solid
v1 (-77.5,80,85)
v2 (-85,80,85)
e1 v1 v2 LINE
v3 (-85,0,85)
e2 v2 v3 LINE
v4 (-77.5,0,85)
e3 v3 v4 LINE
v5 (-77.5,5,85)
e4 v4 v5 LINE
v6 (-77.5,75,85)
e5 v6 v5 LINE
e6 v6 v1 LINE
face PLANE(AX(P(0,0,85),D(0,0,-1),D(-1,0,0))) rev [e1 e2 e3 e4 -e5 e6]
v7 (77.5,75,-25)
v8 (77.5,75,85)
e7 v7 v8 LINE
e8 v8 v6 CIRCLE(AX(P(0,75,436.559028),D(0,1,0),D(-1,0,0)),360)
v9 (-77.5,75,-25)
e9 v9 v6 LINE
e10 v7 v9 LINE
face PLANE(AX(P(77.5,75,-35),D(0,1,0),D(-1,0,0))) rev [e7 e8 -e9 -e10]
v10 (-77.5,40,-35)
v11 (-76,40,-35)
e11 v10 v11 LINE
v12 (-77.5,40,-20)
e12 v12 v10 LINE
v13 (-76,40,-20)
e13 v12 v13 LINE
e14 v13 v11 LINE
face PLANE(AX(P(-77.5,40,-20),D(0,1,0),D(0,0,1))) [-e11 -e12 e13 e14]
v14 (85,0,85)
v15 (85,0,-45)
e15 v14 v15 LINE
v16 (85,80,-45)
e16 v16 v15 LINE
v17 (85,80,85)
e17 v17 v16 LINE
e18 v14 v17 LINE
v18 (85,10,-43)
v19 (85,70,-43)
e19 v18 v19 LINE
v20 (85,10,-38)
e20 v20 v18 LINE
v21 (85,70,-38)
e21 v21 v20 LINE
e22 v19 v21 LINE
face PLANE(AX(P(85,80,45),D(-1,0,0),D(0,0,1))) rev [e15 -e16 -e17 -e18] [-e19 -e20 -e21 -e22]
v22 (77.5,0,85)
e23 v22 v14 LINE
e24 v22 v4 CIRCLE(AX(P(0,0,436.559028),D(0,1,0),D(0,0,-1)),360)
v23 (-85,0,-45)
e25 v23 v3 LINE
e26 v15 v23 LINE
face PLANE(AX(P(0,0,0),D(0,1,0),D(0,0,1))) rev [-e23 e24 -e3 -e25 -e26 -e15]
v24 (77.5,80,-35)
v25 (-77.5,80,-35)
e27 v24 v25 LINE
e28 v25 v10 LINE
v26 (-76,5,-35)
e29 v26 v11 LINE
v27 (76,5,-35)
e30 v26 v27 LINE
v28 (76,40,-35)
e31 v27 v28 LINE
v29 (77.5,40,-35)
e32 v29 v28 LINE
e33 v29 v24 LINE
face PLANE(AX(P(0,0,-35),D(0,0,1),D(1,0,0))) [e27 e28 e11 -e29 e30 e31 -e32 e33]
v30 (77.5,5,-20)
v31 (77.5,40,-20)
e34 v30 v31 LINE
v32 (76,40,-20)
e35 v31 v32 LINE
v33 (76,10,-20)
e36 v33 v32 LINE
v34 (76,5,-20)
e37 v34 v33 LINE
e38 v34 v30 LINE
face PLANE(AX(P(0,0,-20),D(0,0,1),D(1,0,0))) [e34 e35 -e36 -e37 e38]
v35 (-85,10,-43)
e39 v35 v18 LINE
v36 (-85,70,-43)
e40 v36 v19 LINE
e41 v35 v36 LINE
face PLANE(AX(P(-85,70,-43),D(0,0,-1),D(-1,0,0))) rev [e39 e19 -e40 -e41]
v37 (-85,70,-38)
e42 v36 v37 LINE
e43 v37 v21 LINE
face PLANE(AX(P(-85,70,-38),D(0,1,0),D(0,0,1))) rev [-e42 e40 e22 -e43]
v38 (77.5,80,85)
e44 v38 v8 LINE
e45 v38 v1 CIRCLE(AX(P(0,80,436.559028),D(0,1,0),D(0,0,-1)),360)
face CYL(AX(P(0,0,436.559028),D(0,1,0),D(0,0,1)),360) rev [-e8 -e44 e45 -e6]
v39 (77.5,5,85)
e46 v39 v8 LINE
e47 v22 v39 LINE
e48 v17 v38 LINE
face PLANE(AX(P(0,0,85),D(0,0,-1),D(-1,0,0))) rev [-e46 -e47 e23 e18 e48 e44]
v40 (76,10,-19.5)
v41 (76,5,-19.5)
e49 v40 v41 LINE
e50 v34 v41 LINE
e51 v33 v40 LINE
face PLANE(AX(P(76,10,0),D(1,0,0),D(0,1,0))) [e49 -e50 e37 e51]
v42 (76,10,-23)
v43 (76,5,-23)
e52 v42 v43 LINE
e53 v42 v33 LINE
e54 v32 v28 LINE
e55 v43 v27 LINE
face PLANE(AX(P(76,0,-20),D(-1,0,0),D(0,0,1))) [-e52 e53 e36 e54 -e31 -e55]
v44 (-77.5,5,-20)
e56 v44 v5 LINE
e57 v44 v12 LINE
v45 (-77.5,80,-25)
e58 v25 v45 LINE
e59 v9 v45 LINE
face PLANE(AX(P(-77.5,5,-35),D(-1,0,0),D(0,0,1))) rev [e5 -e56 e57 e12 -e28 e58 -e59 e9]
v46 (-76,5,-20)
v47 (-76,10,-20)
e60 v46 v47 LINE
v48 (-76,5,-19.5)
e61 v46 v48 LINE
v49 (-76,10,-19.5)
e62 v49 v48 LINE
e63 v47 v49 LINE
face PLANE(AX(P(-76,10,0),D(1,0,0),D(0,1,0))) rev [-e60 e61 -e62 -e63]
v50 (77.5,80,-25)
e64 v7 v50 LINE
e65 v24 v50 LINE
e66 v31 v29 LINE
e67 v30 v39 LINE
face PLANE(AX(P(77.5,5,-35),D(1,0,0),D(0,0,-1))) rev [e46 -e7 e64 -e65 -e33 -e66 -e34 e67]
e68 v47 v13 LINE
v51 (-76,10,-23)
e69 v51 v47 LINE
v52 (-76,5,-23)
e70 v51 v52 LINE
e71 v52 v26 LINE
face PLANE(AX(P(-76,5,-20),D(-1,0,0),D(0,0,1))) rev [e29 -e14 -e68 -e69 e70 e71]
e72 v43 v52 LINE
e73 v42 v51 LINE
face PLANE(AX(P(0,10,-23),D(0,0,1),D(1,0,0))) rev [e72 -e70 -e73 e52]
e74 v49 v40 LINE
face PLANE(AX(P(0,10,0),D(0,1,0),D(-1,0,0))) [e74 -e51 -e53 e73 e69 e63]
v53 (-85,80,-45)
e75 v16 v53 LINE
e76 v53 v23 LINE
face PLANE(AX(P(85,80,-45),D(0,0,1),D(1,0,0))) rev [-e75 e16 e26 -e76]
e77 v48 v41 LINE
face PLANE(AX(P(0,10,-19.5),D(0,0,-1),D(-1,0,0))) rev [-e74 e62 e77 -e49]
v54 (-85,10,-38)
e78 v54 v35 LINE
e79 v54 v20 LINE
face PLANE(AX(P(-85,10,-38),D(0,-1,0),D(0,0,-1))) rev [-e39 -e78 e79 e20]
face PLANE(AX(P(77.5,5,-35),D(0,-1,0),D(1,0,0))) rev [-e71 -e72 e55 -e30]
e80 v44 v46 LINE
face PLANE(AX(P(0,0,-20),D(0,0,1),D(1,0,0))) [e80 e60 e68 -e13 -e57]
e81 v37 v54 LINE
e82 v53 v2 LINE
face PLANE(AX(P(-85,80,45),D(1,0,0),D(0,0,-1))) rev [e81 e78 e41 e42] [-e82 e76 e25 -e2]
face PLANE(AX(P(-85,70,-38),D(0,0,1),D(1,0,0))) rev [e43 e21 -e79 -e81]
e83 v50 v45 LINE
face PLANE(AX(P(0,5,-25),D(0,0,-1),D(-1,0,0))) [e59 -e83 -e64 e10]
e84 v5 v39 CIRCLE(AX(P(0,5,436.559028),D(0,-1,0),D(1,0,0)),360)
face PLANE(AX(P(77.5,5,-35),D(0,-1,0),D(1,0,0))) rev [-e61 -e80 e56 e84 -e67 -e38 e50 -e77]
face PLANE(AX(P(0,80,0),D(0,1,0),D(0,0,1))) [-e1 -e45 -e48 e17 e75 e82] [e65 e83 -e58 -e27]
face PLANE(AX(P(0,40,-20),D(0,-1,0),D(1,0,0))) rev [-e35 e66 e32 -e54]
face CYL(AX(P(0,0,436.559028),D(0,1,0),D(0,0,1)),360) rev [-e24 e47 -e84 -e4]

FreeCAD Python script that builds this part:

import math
import FreeCAD as App
import Part
import Sketcher
Q = App.Units.Quantity

doc = App.newDocument("Part")
body = doc.addObject("PartDesign::Body", "Body")

sketch1 = body.newObject("Sketcher::SketchObject", "Sketch")
sketch1.AttachmentSupport = (doc.getObject("XZ_Plane"), [""])
sketch1.MapMode = "FlatFace"
sketch1.addGeometry(Part.LineSegment(App.Vector(-85, -45, 0), App.Vector(-85, 45, 0)), False)
sketch1.addGeometry(Part.LineSegment(App.Vector(-85, 45, 0), App.Vector(85, 45, 0)), False)
sketch1.addGeometry(Part.LineSegment(App.Vector(85, 45, 0), App.Vector(85, -45, 0)), False)
sketch1.addGeometry(Part.LineSegment(App.Vector(85, -45, 0), App.Vector(-85, -45, 0)), False)
sketch1.addConstraint(Sketcher.Constraint("Coincident", 0, 2, 1, 1))
sketch1.addConstraint(Sketcher.Constraint("Coincident", 1, 2, 2, 1))
sketch1.addConstraint(Sketcher.Constraint("Coincident", 2, 2, 3, 1))
sketch1.addConstraint(Sketcher.Constraint("Coincident", 3, 2, 0, 1))
sketch1.addConstraint(Sketcher.Constraint("Vertical", 0))
sketch1.addConstraint(Sketcher.Constraint("Horizontal", 1))
sketch1.addConstraint(Sketcher.Constraint("Vertical", 2))
sketch1.addConstraint(Sketcher.Constraint("Horizontal", 3))
sketch1.addConstraint(Sketcher.Constraint("Symmetric", 0, 2, 2, 2, -1, 1))
sketch1.addConstraint(Sketcher.Constraint("DistanceX", 1, 1, 1, 2, Q("170 mm")))
sketch1.addConstraint(Sketcher.Constraint("DistanceY", 0, 1, 0, 2, Q("90 mm")))
pad1 = body.newObject("PartDesign::Pad", "Pad")
pad1.Profile = sketch1
pad1.Length = 80
pad1.Reversed = True

sketch2 = body.newObject("Sketcher::SketchObject", "Sketch001")
sketch2.AttachmentSupport = (doc.getObject("XY_Plane"), [""])
sketch2.MapMode = "FlatFace"
sketch2.AttachmentOffset = App.Placement(App.Vector(0, 0, 45), App.Rotation())
sketch2.addGeometry(Part.LineSegment(App.Vector(-85, 80, 0), App.Vector(-85, 0, 0)), False)
sketch2.addGeometry(Part.LineSegment(App.Vector(-85, 0, 0), App.Vector(85, 0, 0)), False)
sketch2.addGeometry(Part.LineSegment(App.Vector(85, 0, 0), App.Vector(85, 80, 0)), False)
sketch2.addGeometry(Part.LineSegment(App.Vector(85, 80, 0), App.Vector(-85, 80, 0)), False)
sketch2.addConstraint(Sketcher.Constraint("Coincident", 0, 2, 1, 1))
sketch2.addConstraint(Sketcher.Constraint("Coincident", 1, 2, 2, 1))
sketch2.addConstraint(Sketcher.Constraint("Coincident", 2, 2, 3, 1))
sketch2.addConstraint(Sketcher.Constraint("Coincident", 3, 2, 0, 1))
sketch2.addConstraint(Sketcher.Constraint("Vertical", 0))
sketch2.addConstraint(Sketcher.Constraint("Horizontal", 1))
sketch2.addConstraint(Sketcher.Constraint("Vertical", 2))
sketch2.addConstraint(Sketcher.Constraint("Horizontal", 3))
sketch2.addConstraint(Sketcher.Constraint("Symmetric", 0, 2, 1, 2, -1, 1))
sketch2.addConstraint(Sketcher.Constraint("DistanceX", 1, 1, 1, 2, Q("170 mm")))
sketch2.addConstraint(Sketcher.Constraint("DistanceY", 0, 2, 0, 1, Q("80 mm")))
pad2 = body.newObject("PartDesign::Pad", "Pad001")
pad2.Profile = sketch2
pad2.Length = 30

sketch3 = body.newObject("Sketcher::SketchObject", "Sketch002")
sketch3.AttachmentSupport = (doc.getObject("XY_Plane"), [""])
sketch3.MapMode = "FlatFace"
sketch3.AttachmentOffset = App.Placement(App.Vector(0, 0, 75), App.Rotation())
sketch3.addGeometry(Part.LineSegment(App.Vector(-78, 75, 0), App.Vector(-78, 5, 0)), False)
sketch3.addGeometry(Part.LineSegment(App.Vector(-78, 5, 0), App.Vector(78, 5, 0)), False)
sketch3.addGeometry(Part.LineSegment(App.Vector(78, 5, 0), App.Vector(78, 75, 0)), False)
sketch3.addGeometry(Part.LineSegment(App.Vector(78, 75, 0), App.Vector(-78, 75, 0)), False)
sketch3.addConstraint(Sketcher.Constraint("Coincident", 0, 2, 1, 1))
sketch3.addConstraint(Sketcher.Constraint("Coincident", 1, 2, 2, 1))
sketch3.addConstraint(Sketcher.Constraint("Coincident", 2, 2, 3, 1))
sketch3.addConstraint(Sketcher.Constraint("Coincident", 3, 2, 0, 1))
sketch3.addConstraint(Sketcher.Constraint("Vertical", 0))
sketch3.addConstraint(Sketcher.Constraint("Horizontal", 1))
sketch3.addConstraint(Sketcher.Constraint("Vertical", 2))
sketch3.addConstraint(Sketcher.Constraint("Horizontal", 3))
sketch3.addConstraint(Sketcher.Constraint("DistanceX", 1, 1, 1, 2, Q("155 mm")))
sketch3.addConstraint(Sketcher.Constraint("DistanceY", 0, 2, 0, 1, Q("70 mm")))
sketch3.addConstraint(Sketcher.Constraint("DistanceY", -1, 1, 0, 2, Q("5 mm")))
sketch3.addConstraint(Sketcher.Constraint("DistanceX", 0, 2, -1, 1, Q("77.5 mm")))
pocket1 = body.newObject("PartDesign::Pocket", "Pocket")
pocket1.Profile = sketch3
pocket1.Length = 110

sketch4 = body.newObject("Sketcher::SketchObject", "Sketch003")
sketch4.AttachmentSupport = (doc.getObject("XZ_Plane"), [""])
sketch4.MapMode = "FlatFace"
sketch4.AttachmentOffset = App.Placement(App.Vector(0, 0, -80), App.Rotation())
sketch4.addGeometry(Part.LineSegment(App.Vector(-78, -35, 0), App.Vector(-78, -25, 0)), False)
sketch4.addGeometry(Part.LineSegment(App.Vector(-78, -25, 0), App.Vector(78, -25, 0)), False)
sketch4.addGeometry(Part.LineSegment(App.Vector(78, -25, 0), App.Vector(78, -35, 0)), False)
sketch4.addGeometry(Part.LineSegment(App.Vector(78, -35, 0), App.Vector(-78, -35, 0)), False)
sketch4.addConstraint(Sketcher.Constraint("Coincident", 0, 2, 1, 1))
sketch4.addConstraint(Sketcher.Constraint("Coincident", 1, 2, 2, 1))
sketch4.addConstraint(Sketcher.Constraint("Coincident", 2, 2, 3, 1))
sketch4.addConstraint(Sketcher.Constraint("Coincident", 3, 2, 0, 1))
sketch4.addConstraint(Sketcher.Constraint("Vertical", 0))
sketch4.addConstraint(Sketcher.Constraint("Horizontal", 1))
sketch4.addConstraint(Sketcher.Constraint("Vertical", 2))
sketch4.addConstraint(Sketcher.Constraint("Horizontal", 3))
sketch4.addConstraint(Sketcher.Constraint("DistanceX", 1, 1, 1, 2, Q("155 mm")))
sketch4.addConstraint(Sketcher.Constraint("DistanceY", 0, 1, 0, 2, Q("10 mm")))
sketch4.addConstraint(Sketcher.Constraint("DistanceY", 0, 2, -1, 1, Q("25 mm")))
sketch4.addConstraint(Sketcher.Constraint("DistanceX", 0, 2, -1, 1, Q("77.5 mm")))
pocket2 = body.newObject("PartDesign::Pocket", "Pocket001")
pocket2.Profile = sketch4
pocket2.Length = 75
pocket2.Reversed = True

sketch5 = body.newObject("Sketcher::SketchObject", "Sketch004")
sketch5.AttachmentSupport = (doc.getObject("XY_Plane"), [""])
sketch5.MapMode = "FlatFace"
sketch5.AttachmentOffset = App.Placement(App.Vector(0, 0, -35), App.Rotation())
sketch5.addGeometry(Part.LineSegment(App.Vector(76, 40, 0), App.Vector(76, 5, 0)), False)
sketch5.addGeometry(Part.LineSegment(App.Vector(76, 5, 0), App.Vector(77.5, 5, 0)), False)
sketch5.addGeometry(Part.LineSegment(App.Vector(77.5, 5, 0), App.Vector(77.5, 40, 0)), False)
sketch5.addGeometry(Part.LineSegment(App.Vector(77.5, 40, 0), App.Vector(76, 40, 0)), False)
sketch5.addGeometry(Part.LineSegment(App.Vector(-77.5, 40, 0), App.Vector(-77.5, 5, 0)), False)
sketch5.addGeometry(Part.LineSegment(App.Vector(-77.5, 5, 0), App.Vector(-76, 5, 0)), False)
sketch5.addGeometry(Part.LineSegment(App.Vector(-76, 5, 0), App.Vector(-76, 40, 0)), False)
sketch5.addGeometry(Part.LineSegment(App.Vector(-76, 40, 0), App.Vector(-77.5, 40, 0)), False)
sketch5.addConstraint(Sketcher.Constraint("Coincident", 0, 2, 1, 1))
sketch5.addConstraint(Sketcher.Constraint("Coincident", 1, 2, 2, 1))
sketch5.addConstraint(Sketcher.Constraint("Coincident", 2, 2, 3, 1))
sketch5.addConstraint(Sketcher.Constraint("Coincident", 3, 2, 0, 1))
sketch5.addConstraint(Sketcher.Constraint("Coincident", 4, 2, 5, 1))
sketch5.addConstraint(Sketcher.Constraint("Coincident", 5, 2, 6, 1))
sketch5.addConstraint(Sketcher.Constraint("Coincident", 6, 2, 7, 1))
sketch5.addConstraint(Sketcher.Constraint("Coincident", 7, 2, 4, 1))
sketch5.addConstraint(Sketcher.Constraint("Vertical", 0))
sketch5.addConstraint(Sketcher.Constraint("Horizontal", 1))
sketch5.addConstraint(Sketcher.Constraint("Vertical", 2))
sketch5.addConstraint(Sketcher.Constraint("Horizontal", 3))
sketch5.addConstraint(Sketcher.Constraint("Vertical", 4))
sketch5.addConstraint(Sketcher.Constraint("Horizontal", 5))
sketch5.addConstraint(Sketcher.Constraint("Vertical", 6))
sketch5.addConstraint(Sketcher.Constraint("Horizontal", 7))
sketch5.addConstraint(Sketcher.Constraint("Symmetric", 1, 2, 4, 2, -2))
sketch5.addConstraint(Sketcher.Constraint("Symmetric", 3, 2, 6, 2, -2))
sketch5.addConstraint(Sketcher.Constraint("DistanceY", 0, 2, 0, 1, Q("35 mm")))
sketch5.addConstraint(Sketcher.Constraint("DistanceX", 1, 1, 1, 2, Q("1.5 mm")))
sketch5.addConstraint(Sketcher.Constraint("DistanceX", -1, 1, 0, 2, Q("76 mm")))
sketch5.addConstraint(Sketcher.Constraint("DistanceY", -1, 1, 0, 2, Q("5 mm")))
pad3 = body.newObject("PartDesign::Pad", "Pad002")
pad3.Profile = sketch5
pad3.Length = 15

sketch6 = body.newObject("Sketcher::SketchObject", "Sketch005")
sketch6.AttachmentSupport = (doc.getObject("XZ_Plane"), [""])
sketch6.MapMode = "FlatFace"
sketch6.AttachmentOffset = App.Placement(App.Vector(0, 0, -5), App.Rotation())
sketch6.addGeometry(Part.LineSegment(App.Vector(-76, -23, 0), App.Vector(-76, -19.5, 0)), False)
sketch6.addGeometry(Part.LineSegment(App.Vector(-76, -19.5, 0), App.Vector(76, -19.5, 0)), False)
sketch6.addGeometry(Part.LineSegment(App.Vector(76, -19.5, 0), App.Vector(76, -23, 0)), False)
sketch6.addGeometry(Part.LineSegment(App.Vector(76, -23, 0), App.Vector(-76, -23, 0)), False)
sketch6.addConstraint(Sketcher.Constraint("Coincident", 0, 2, 1, 1))
sketch6.addConstraint(Sketcher.Constraint("Coincident", 1, 2, 2, 1))
sketch6.addConstraint(Sketcher.Constraint("Coincident", 2, 2, 3, 1))
sketch6.addConstraint(Sketcher.Constraint("Coincident", 3, 2, 0, 1))
sketch6.addConstraint(Sketcher.Constraint("Vertical", 0))
sketch6.addConstraint(Sketcher.Constraint("Horizontal", 1))
sketch6.addConstraint(Sketcher.Constraint("Vertical", 2))
sketch6.addConstraint(Sketcher.Constraint("Horizontal", 3))
sketch6.addConstraint(Sketcher.Constraint("DistanceX", 1, 1, 1, 2, Q("152 mm")))
sketch6.addConstraint(Sketcher.Constraint("DistanceY", 0, 1, 0, 2, Q("3.5 mm")))
sketch6.addConstraint(Sketcher.Constraint("DistanceX", 0, 2, -1, 1, Q("76 mm")))
sketch6.addConstraint(Sketcher.Constraint("DistanceY", 2, 2, -1, 1, Q("23 mm")))
pad4 = body.newObject("PartDesign::Pad", "Pad003")
pad4.Profile = sketch6
pad4.Length = 5
pad4.Reversed = True

sketch7 = body.newObject("Sketcher::SketchObject", "Sketch006")
sketch7.AttachmentSupport = (doc.getObject("XY_Plane"), [""])
sketch7.MapMode = "FlatFace"
sketch7.AttachmentOffset = App.Placement(App.Vector(0, 0, 75), App.Rotation())
sketch7.addGeometry(Part.LineSegment(App.Vector(-85, 80, 0), App.Vector(-85, 0, 0)), False)
sketch7.addGeometry(Part.LineSegment(App.Vector(-85, 0, 0), App.Vector(85, 0, 0)), False)
sketch7.addGeometry(Part.LineSegment(App.Vector(85, 0, 0), App.Vector(85, 80, 0)), False)
sketch7.addGeometry(Part.LineSegment(App.Vector(85, 80, 0), App.Vector(-85, 80, 0)), False)
sketch7.addGeometry(Part.LineSegment(App.Vector(78, 5, 0), App.Vector(-78, 5, 0)), False)
sketch7.addGeometry(Part.LineSegment(App.Vector(-78, 5, 0), App.Vector(-78, 75, 0)), False)
sketch7.addGeometry(Part.LineSegment(App.Vector(-78, 75, 0), App.Vector(78, 75, 0)), False)
sketch7.addGeometry(Part.LineSegment(App.Vector(78, 75, 0), App.Vector(78, 5, 0)), False)
sketch7.addConstraint(Sketcher.Constraint("Coincident", 0, 2, 1, 1))
sketch7.addConstraint(Sketcher.Constraint("Coincident", 1, 2, 2, 1))
sketch7.addConstraint(Sketcher.Constraint("Coincident", 2, 2, 3, 1))
sketch7.addConstraint(Sketcher.Constraint("Coincident", 3, 2, 0, 1))
sketch7.addConstraint(Sketcher.Constraint("Coincident", 4, 2, 5, 1))
sketch7.addConstraint(Sketcher.Constraint("Coincident", 5, 2, 6, 1))
sketch7.addConstraint(Sketcher.Constraint("Coincident", 6, 2, 7, 1))
sketch7.addConstraint(Sketcher.Constraint("Coincident", 7, 2, 4, 1))
sketch7.addConstraint(Sketcher.Constraint("Vertical", 0))
sketch7.addConstraint(Sketcher.Constraint("Horizontal", 1))
sketch7.addConstraint(Sketcher.Constraint("Vertical", 2))
sketch7.addConstraint(Sketcher.Constraint("Horizontal", 3))
sketch7.addConstraint(Sketcher.Constraint("Horizontal", 4))
sketch7.addConstraint(Sketcher.Constraint("Vertical", 5))
sketch7.addConstraint(Sketcher.Constraint("Horizontal", 6))
sketch7.addConstraint(Sketcher.Constraint("Vertical", 7))
sketch7.addConstraint(Sketcher.Constraint("Symmetric", 0, 2, 1, 2, -1, 1))
sketch7.addConstraint(Sketcher.Constraint("DistanceX", 1, 1, 1, 2, Q("170 mm")))
sketch7.addConstraint(Sketcher.Constraint("DistanceX", 4, 2, 4, 1, Q("155 mm")))
sketch7.addConstraint(Sketcher.Constraint("DistanceY", 0, 2, 0, 1, Q("80 mm")))
sketch7.addConstraint(Sketcher.Constraint("DistanceY", 5, 1, 5, 2, Q("70 mm")))
sketch7.addConstraint(Sketcher.Constraint("DistanceY", -1, 1, 4, 2, Q("5 mm")))
sketch7.addConstraint(Sketcher.Constraint("DistanceX", 4, 2, -1, 1, Q("77.5 mm")))
pad5 = body.newObject("PartDesign::Pad", "Pad004")
pad5.Profile = sketch7
pad5.Length = 10

sketch8 = body.newObject("Sketcher::SketchObject", "Sketch007")
sketch8.AttachmentSupport = (doc.getObject("XZ_Plane"), [""])
sketch8.MapMode = "FlatFace"
sketch8.AttachmentOffset = App.Placement(App.Vector(0, 0, -80), App.Rotation())
sketch8.addGeometry(Part.LineSegment(App.Vector(-78, 85, 0), App.Vector(78, 85, 0)), False)
sketch8.addGeometry(Part.ArcOfCircle(Part.Circle(App.Vector(0, 437, 0), App.Vector(0, 0, 1), 360), math.radians(-102), math.radians(-78)), False)
sketch8.addConstraint(Sketcher.Constraint("Coincident", 0, 1, 1, 1))
sketch8.addConstraint(Sketcher.Constraint("Coincident", 1, 2, 0, 2))
sketch8.addConstraint(Sketcher.Constraint("Horizontal", 0))
sketch8.addConstraint(Sketcher.Constraint("PointOnObject", 1, 3, -2))
sketch8.addConstraint(Sketcher.Constraint("Radius", 1, Q("360 mm")))
sketch8.addConstraint(Sketcher.Constraint("DistanceX", 0, 1, 0, 2, Q("155 mm")))
sketch8.addConstraint(Sketcher.Constraint("DistanceY", -1, 1, 0, 1, Q("85 mm")))
pocket3 = body.newObject("PartDesign::Pocket", "Pocket002")
pocket3.Profile = sketch8
pocket3.Type = "ThroughAll"
pocket3.Reversed = True

sketch9 = body.newObject("Sketcher::SketchObject", "Sketch008")
sketch9.AttachmentSupport = (doc.getObject("YZ_Plane"), [""])
sketch9.MapMode = "FlatFace"
sketch9.AttachmentOffset = App.Placement(App.Vector(0, 0, 85), App.Rotation())
sketch9.addGeometry(Part.LineSegment(App.Vector(70, -38, 0), App.Vector(10, -38, 0)), False)
sketch9.addGeometry(Part.LineSegment(App.Vector(10, -38, 0), App.Vector(10, -43, 0)), False)
sketch9.addGeometry(Part.LineSegment(App.Vector(10, -43, 0), App.Vector(70, -43, 0)), False)
sketch9.addGeometry(Part.LineSegment(App.Vector(70, -43, 0), App.Vector(70, -38, 0)), False)
sketch9.addConstraint(Sketcher.Constraint("Coincident", 0, 2, 1, 1))
sketch9.addConstraint(Sketcher.Constraint("Coincident", 1, 2, 2, 1))
sketch9.addConstraint(Sketcher.Constraint("Coincident", 2, 2, 3, 1))
sketch9.addConstraint(Sketcher.Constraint("Coincident", 3, 2, 0, 1))
sketch9.addConstraint(Sketcher.Constraint("Horizontal", 0))
sketch9.addConstraint(Sketcher.Constraint("Vertical", 1))
sketch9.addConstraint(Sketcher.Constraint("Horizontal", 2))
sketch9.addConstraint(Sketcher.Constraint("Vertical", 3))
sketch9.addConstraint(Sketcher.Constraint("DistanceX", 0, 2, 0, 1, Q("60 mm")))
sketch9.addConstraint(Sketcher.Constraint("DistanceY", 1, 2, 1, 1, Q("5 mm")))
sketch9.addConstraint(Sketcher.Constraint("DistanceX", -1, 1, 0, 2, Q("10 mm")))
sketch9.addConstraint(Sketcher.Constraint("DistanceY", 0, 2, -1, 1, Q("38 mm")))
pocket4 = body.newObject("PartDesign::Pocket", "Pocket003")
pocket4.Profile = sketch9
pocket4.Type = "ThroughAll"

doc.recompute()
